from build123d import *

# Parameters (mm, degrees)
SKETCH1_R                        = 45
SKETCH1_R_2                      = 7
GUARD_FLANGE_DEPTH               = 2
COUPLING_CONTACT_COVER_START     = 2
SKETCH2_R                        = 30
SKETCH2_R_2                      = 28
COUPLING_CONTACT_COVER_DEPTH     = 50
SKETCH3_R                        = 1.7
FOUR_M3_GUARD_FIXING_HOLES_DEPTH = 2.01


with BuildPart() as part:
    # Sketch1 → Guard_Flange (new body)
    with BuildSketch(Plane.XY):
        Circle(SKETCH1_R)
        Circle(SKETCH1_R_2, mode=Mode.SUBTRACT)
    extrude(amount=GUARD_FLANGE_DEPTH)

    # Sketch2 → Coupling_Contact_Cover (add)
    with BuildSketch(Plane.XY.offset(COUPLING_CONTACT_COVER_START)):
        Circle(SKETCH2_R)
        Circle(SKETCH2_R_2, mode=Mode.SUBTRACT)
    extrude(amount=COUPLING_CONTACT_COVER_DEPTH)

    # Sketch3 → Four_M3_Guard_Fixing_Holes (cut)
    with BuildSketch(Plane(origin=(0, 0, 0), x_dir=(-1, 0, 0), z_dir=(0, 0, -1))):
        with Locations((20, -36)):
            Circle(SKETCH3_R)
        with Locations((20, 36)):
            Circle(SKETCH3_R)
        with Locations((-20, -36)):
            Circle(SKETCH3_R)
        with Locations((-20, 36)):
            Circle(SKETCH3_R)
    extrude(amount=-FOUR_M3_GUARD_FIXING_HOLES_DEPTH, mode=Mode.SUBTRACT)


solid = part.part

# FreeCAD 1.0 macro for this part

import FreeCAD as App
import Part
import Sketcher
Q = App.Units.Quantity

doc = App.newDocument("Part")
body = doc.addObject("PartDesign::Body", "Body")

# Sketch on XY plane
sketch1 = doc.addObject("Sketcher::SketchObject", "Sketch")
body.addObject(sketch1)
sketch1.AttachmentSupport = (doc.XY_Plane, [""])
sketch1.MapMode = "FlatFace"
sketch1.addGeometry([
    Part.Circle(App.Vector(0, 0, 0), App.Vector(0, 0, 1), 45),
    Part.Circle(App.Vector(0, 0, 0), App.Vector(0, 0, 1), 7),
], False)
sketch1.addConstraint([
    Sketcher.Constraint("Coincident", 0, 3, -1, 1),
    Sketcher.Constraint("Coincident", 1, 3, -1, 1),
    Sketcher.Constraint("Diameter", 0, Q("90 mm")),
    Sketcher.Constraint("Diameter", 1, Q("14 mm")),
])
pad1 = doc.addObject("PartDesign::Pad", "Pad")
body.addObject(pad1)
pad1.Profile = sketch1
pad1.Length = 2

# Sketch on XY plane
sketch2 = doc.addObject("Sketcher::SketchObject", "Sketch001")
body.addObject(sketch2)
sketch2.AttachmentSupport = (doc.XY_Plane, [""])
sketch2.MapMode = "FlatFace"
sketch2.AttachmentOffset = App.Placement(App.Vector(0, 0, 2), App.Rotation())
sketch2.addGeometry([
    Part.Circle(App.Vector(0, 0, 0), App.Vector(0, 0, 1), 30),
    Part.Circle(App.Vector(0, 0, 0), App.Vector(0, 0, 1), 28),
], False)
sketch2.addConstraint([
    Sketcher.Constraint("Coincident", 0, 3, -1, 1),
    Sketcher.Constraint("Coincident", 1, 3, -1, 1),
    Sketcher.Constraint("Diameter", 0, Q("60 mm")),
    Sketcher.Constraint("Diameter", 1, Q("56 mm")),
])
pad2 = doc.addObject("PartDesign::Pad", "Pad001")
body.addObject(pad2)
pad2.Profile = sketch2
pad2.Length = 50

# Sketch on XY plane
sketch3 = doc.addObject("Sketcher::SketchObject", "Sketch002")
body.addObject(sketch3)
sketch3.AttachmentSupport = (doc.XY_Plane, [""])
sketch3.MapMode = "FlatFace"
sketch3.addGeometry([
    Part.Circle(App.Vector(-20, -36, 0), App.Vector(0, 0, 1), 1.7),
    Part.Circle(App.Vector(-20, 36, 0), App.Vector(0, 0, 1), 1.7),
    Part.Circle(App.Vector(20, -36, 0), App.Vector(0, 0, 1), 1.7),
    Part.Circle(App.Vector(20, 36, 0), App.Vector(0, 0, 1), 1.7),
], False)
sketch3.addConstraint([
    Sketcher.Constraint("Equal", 0, 1),
    Sketcher.Constraint("Equal", 1, 2),
    Sketcher.Constraint("Equal", 2, 3),
    Sketcher.Constraint("Symmetric", 1, 3, 2, 3, -1, 1),
    Sketcher.Constraint("Symmetric", 0, 3, 3, 3, -1, 1),
    Sketcher.Constraint("Symmetric", 0, 3, 2, 3, -2),
    Sketcher.Constraint("Diameter", 0, Q("3.4 mm")),
    Sketcher.Constraint("DistanceX", 0, 3, -1, 1, Q("20 mm")),
    Sketcher.Constraint("DistanceY", 0, 3, -1, 1, Q("36 mm")),
])
pocket1 = doc.addObject("PartDesign::Pocket", "Pocket")
body.addObject(pocket1)
pocket1.Profile = sketch3
pocket1.Length = 2.01
pocket1.Reversed = True

doc.recompute()
